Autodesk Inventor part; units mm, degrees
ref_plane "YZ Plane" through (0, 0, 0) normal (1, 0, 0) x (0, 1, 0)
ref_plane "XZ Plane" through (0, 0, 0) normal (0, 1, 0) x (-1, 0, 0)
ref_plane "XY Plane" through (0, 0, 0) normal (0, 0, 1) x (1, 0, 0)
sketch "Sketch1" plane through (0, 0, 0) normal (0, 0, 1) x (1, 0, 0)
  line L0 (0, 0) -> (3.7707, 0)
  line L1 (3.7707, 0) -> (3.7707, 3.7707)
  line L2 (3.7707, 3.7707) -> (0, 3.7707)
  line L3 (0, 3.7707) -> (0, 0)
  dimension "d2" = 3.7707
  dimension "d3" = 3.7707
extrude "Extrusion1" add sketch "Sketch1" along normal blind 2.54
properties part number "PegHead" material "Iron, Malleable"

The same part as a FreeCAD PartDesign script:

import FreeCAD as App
import Part
import Sketcher
from FreeCAD import Vector
Q = App.Units.Quantity


def add_polygon(sketch, points):
    """Adds a closed chain of lines whose ends are joined by coincident constraints."""
    first, n = sketch.GeometryCount, len(points)
    for a, b in zip(points, points[1:] + points[:1]):
        sketch.addGeometry(Part.LineSegment(App.Vector(*a, 0), App.Vector(*b, 0)), False)
    for i in range(n):
        sketch.addConstraint(Sketcher.Constraint("Coincident", first + i, 2, first + (i + 1) % n, 1))

doc = App.newDocument("Part")
body = doc.addObject("PartDesign::Body", "Body")

sketch1 = doc.addObject("Sketcher::SketchObject", "Sketch")
body.addObject(sketch1)
sketch1.AttachmentSupport = (doc.XY_Plane, [""])
sketch1.MapMode = "FlatFace"
add_polygon(sketch1, [(0, 3.7707), (0, 0), (3.7707, 0), (3.7707, 3.7707)])
sketch1.addConstraint([
    Sketcher.Constraint("Vertical", 0),
    Sketcher.Constraint("Horizontal", 1),
    Sketcher.Constraint("Vertical", 2),
    Sketcher.Constraint("Horizontal", 3),
    Sketcher.Constraint("Coincident", 0, 2, -1, 1),
    Sketcher.Constraint("Equal", 3, 0),
    Sketcher.Constraint("DistanceX", 1, 1, 1, 2, Q("3.7707 mm")),
])
pad1 = doc.addObject("PartDesign::Pad", "Pad")
body.addObject(pad1)
pad1.Profile = sketch1
pad1.Length = Q("0.1 in")

doc.recompute()
